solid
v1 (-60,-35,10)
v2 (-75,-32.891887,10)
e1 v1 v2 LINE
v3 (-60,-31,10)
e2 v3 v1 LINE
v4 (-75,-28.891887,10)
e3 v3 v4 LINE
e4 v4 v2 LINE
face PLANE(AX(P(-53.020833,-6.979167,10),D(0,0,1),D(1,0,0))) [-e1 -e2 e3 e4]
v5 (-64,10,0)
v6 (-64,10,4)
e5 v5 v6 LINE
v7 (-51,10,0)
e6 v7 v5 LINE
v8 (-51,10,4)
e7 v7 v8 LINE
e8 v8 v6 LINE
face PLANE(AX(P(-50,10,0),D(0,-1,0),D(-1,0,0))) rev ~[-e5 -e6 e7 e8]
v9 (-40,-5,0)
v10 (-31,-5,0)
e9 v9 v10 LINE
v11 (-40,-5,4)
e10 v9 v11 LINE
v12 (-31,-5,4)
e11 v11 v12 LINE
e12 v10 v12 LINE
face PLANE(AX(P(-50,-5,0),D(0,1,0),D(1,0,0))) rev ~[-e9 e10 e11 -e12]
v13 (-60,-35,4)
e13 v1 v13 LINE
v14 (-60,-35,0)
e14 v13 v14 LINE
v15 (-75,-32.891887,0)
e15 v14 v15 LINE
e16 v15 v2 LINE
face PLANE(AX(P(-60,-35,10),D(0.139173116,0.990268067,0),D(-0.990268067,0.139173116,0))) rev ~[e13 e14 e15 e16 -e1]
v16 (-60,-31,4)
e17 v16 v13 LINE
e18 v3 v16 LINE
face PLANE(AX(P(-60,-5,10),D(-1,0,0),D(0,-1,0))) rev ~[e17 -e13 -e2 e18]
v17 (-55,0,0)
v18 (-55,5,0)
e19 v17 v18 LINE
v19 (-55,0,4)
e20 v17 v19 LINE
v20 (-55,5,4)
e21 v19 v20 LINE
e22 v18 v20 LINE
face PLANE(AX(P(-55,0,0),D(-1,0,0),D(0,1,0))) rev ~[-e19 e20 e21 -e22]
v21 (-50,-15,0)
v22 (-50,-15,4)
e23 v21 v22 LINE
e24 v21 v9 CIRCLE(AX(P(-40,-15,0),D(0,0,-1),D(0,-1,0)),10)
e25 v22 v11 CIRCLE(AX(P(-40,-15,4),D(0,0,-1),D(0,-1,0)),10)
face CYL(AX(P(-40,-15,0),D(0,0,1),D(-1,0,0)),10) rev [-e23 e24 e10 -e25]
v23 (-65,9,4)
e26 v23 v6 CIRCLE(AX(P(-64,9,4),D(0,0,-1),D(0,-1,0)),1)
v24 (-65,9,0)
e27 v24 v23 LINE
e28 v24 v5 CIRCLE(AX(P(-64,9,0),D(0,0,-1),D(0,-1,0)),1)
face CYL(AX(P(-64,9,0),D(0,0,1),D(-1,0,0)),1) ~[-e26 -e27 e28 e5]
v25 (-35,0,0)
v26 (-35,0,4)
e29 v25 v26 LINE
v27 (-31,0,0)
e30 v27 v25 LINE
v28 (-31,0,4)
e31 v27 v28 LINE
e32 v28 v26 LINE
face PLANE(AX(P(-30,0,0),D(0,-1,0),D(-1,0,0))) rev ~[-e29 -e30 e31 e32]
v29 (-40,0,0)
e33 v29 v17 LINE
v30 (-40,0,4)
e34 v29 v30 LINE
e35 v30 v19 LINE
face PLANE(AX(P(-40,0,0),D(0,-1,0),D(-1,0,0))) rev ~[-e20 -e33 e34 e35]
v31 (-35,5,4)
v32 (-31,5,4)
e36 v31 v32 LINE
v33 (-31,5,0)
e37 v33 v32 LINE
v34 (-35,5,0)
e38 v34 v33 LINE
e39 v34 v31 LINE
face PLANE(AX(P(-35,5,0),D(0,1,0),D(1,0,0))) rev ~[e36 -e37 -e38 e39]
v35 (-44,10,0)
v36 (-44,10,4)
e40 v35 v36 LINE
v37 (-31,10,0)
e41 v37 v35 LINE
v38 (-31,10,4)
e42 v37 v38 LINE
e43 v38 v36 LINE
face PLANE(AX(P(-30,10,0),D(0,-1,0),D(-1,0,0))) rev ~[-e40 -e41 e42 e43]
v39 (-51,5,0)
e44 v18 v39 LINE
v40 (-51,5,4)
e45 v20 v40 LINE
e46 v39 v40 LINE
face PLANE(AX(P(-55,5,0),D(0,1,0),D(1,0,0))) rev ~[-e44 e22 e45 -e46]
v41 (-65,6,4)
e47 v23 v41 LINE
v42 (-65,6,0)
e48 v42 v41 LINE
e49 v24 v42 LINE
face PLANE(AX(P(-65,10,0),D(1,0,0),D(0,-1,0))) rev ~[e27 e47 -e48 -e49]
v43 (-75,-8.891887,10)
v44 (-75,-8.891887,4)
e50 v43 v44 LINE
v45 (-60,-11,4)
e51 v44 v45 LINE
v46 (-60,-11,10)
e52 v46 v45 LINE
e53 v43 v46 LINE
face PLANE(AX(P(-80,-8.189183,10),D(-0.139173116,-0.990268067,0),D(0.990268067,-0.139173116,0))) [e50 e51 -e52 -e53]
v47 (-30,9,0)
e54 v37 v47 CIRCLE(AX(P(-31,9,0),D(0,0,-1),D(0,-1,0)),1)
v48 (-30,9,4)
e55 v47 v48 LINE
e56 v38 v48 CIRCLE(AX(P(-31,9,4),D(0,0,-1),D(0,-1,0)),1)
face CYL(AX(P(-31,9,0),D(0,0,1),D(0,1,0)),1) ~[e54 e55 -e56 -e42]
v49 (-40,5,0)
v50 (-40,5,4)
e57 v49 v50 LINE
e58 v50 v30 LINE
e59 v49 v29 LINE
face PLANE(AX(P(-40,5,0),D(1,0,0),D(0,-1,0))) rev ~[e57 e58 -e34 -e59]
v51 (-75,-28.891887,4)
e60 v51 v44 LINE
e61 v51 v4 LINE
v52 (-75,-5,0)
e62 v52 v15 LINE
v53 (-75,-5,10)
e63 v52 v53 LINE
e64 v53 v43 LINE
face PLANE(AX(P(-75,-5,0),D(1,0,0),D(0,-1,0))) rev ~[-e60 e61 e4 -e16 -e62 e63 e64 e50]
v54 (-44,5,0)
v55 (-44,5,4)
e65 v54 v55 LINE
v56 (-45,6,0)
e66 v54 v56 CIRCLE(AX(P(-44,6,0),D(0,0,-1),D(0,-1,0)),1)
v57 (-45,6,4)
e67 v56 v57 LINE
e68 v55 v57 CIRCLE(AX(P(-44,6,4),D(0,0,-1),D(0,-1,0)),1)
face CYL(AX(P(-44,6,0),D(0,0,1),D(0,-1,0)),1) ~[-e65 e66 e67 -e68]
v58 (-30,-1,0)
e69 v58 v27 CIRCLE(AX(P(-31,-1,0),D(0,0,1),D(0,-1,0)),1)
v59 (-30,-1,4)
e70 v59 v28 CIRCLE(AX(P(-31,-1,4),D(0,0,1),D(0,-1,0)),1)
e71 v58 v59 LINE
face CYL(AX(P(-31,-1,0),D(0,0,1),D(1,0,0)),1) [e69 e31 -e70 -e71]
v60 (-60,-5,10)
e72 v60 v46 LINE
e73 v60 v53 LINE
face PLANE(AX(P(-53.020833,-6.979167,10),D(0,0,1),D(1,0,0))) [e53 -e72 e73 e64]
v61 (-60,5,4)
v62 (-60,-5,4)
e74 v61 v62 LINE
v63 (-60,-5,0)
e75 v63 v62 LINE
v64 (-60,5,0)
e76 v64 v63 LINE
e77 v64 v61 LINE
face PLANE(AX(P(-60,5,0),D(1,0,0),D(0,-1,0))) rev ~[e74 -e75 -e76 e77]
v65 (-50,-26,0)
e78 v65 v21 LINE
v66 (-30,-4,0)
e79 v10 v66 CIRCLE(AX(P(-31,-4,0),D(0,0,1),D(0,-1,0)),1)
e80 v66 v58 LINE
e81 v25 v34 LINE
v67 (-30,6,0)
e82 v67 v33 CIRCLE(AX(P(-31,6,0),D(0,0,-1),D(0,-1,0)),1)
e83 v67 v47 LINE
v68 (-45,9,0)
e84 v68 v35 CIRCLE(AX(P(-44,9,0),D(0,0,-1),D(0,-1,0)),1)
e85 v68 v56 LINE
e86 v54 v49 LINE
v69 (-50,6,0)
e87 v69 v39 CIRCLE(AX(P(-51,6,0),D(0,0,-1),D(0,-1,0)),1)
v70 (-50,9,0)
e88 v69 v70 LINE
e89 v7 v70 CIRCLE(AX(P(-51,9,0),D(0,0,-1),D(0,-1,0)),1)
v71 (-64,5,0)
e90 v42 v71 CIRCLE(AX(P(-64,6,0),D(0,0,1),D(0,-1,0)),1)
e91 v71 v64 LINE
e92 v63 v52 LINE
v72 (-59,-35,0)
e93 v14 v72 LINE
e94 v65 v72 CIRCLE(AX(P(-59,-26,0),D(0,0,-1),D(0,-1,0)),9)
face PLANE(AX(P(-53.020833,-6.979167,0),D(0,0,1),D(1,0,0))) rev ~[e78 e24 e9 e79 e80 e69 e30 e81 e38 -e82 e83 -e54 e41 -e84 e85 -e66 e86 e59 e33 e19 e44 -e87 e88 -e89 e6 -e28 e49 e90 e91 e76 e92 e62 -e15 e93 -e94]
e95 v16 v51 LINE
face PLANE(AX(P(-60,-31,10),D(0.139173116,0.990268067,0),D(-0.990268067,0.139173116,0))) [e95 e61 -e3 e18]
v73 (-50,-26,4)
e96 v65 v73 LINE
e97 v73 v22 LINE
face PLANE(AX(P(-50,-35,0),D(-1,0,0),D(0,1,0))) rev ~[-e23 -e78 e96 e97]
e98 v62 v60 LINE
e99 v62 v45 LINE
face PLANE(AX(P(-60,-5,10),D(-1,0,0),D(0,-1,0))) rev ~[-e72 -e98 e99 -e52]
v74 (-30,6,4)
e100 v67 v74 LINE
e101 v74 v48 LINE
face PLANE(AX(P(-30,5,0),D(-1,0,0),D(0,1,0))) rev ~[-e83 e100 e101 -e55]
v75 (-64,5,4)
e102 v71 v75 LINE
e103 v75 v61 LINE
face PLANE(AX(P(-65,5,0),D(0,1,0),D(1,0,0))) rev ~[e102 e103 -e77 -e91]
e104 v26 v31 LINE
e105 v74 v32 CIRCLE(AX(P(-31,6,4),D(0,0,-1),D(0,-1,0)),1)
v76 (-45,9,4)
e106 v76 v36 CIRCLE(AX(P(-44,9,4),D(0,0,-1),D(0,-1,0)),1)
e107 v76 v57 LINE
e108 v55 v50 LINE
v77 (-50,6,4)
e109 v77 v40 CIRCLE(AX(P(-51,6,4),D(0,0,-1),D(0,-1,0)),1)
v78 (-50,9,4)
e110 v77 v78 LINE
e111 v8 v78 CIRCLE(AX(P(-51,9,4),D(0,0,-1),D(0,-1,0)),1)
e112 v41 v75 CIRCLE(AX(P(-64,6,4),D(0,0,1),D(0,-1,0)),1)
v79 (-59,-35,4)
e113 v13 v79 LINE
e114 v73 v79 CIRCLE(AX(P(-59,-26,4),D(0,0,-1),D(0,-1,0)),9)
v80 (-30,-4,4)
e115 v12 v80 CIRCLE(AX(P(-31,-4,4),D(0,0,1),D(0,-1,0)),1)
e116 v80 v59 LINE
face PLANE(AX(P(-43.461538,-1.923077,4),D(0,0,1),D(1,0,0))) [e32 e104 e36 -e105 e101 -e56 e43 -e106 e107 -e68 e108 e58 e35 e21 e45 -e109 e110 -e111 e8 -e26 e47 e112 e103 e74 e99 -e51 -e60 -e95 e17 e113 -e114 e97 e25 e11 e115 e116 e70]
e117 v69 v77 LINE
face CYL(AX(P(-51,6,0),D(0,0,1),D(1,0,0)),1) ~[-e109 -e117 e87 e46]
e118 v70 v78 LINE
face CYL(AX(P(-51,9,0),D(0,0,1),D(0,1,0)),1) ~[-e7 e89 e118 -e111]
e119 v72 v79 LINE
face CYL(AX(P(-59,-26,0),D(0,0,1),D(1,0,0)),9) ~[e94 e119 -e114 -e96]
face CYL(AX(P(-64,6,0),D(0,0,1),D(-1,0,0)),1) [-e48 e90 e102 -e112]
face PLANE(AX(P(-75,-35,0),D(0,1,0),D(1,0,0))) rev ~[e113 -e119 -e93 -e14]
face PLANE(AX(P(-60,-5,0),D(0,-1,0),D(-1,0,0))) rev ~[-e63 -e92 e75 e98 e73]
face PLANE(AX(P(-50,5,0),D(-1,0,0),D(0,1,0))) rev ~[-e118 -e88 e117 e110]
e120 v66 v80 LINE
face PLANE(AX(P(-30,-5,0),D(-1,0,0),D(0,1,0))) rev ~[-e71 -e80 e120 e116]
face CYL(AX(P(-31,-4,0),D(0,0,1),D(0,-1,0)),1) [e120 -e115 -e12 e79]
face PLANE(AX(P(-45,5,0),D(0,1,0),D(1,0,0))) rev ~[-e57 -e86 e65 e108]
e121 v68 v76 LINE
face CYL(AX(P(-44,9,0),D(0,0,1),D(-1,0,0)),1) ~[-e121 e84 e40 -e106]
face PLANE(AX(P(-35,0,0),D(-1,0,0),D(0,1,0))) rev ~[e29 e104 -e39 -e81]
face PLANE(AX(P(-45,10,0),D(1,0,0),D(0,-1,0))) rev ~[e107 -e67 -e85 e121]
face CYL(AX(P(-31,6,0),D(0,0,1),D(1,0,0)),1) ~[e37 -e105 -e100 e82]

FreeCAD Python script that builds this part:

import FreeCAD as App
import Part
import Sketcher
from FreeCAD import Vector
Q = App.Units.Quantity


def edges_at(feature, points):
    """Names of the edges that pass closest to the given points."""
    edges = feature.Shape.Edges
    near = lambda p: min(range(len(edges)), key=lambda i: edges[i].distToShape(Part.Vertex(*p))[0])
    return sorted({f"Edge{near(p) + 1}" for p in points})


def add_polygon(sketch, points):
    """Adds a closed chain of lines whose ends are joined by coincident constraints."""
    first, n = sketch.GeometryCount, len(points)
    for a, b in zip(points, points[1:] + points[:1]):
        sketch.addGeometry(Part.LineSegment(App.Vector(*a, 0), App.Vector(*b, 0)), False)
    for i in range(n):
        sketch.addConstraint(Sketcher.Constraint("Coincident", first + i, 2, first + (i + 1) % n, 1))

doc = App.newDocument("Part")
params = doc.addObject("Spreadsheet::Sheet", "Params")
for row, (alias, value) in enumerate([
    ("sketch1_width", "5 mm"),
    ("sketch1_width2", "15 mm"),
    ("sketch1_height", "30 mm"),
    ("pad1_length", "10 mm"),
    ("sketch2_width", "80 mm"),
    ("sketch2_width2", "20 mm"),
    ("sketch2_width3", "10 mm"),
    ("sketch2_height", "30 mm"),
    ("pocket1_length", "6 mm"),
    ("sketch3_height", "20 mm"),
    ("pocket2_length", "6 mm"),
    ("sketch4_width", "20 mm"),
    ("sketch4_height", "5 mm"),
    ("pocket3_length", "11 mm"),
    ("fillet_radius", "1 mm"),
    ("fillet2_radius", "10 mm"),
    ("fillet3_radius", "9 mm"),
    ("fillet4_radius", "1 mm"),
], start=1):
    params.set(f"A{row}", alias)
    params.set(f"B{row}", "=" + value)
    params.setAlias(f"B{row}", alias)

body = doc.addObject("PartDesign::Body", "Body")

# Sketch on XY plane
sketch1 = doc.addObject("Sketcher::SketchObject", "Sketch")
body.addObject(sketch1)
sketch1.AttachmentSupport = (doc.XY_Plane, [""])
sketch1.MapMode = "FlatFace"
add_polygon(sketch1, [(-65, 10), (-65, 5), (-60, 5), (-60, -5), (-75, -5), (-75, -35), (-50, -35), (-50, -5), (-30, -5), (-30, 0), (-35, 0), (-35, 5), (-30, 5), (-30, 10), (-45, 10), (-45, 5), (-40, 5), (-40, 0), (-55, 0), (-55, 5), (-50, 5), (-50, 10)])  # lines 0-21
sketch1.addConstraint([
    Sketcher.Constraint("Vertical", 0),
    Sketcher.Constraint("Horizontal", 1),
    Sketcher.Constraint("Vertical", 2),
    Sketcher.Constraint("Horizontal", 3),
    Sketcher.Constraint("Vertical", 4),
    Sketcher.Constraint("Horizontal", 5),
    Sketcher.Constraint("Vertical", 6),
    Sketcher.Constraint("Horizontal", 7),
    Sketcher.Constraint("Vertical", 8),
    Sketcher.Constraint("Horizontal", 9),
    Sketcher.Constraint("Vertical", 10),
    Sketcher.Constraint("Horizontal", 11),
    Sketcher.Constraint("Vertical", 12),
    Sketcher.Constraint("Horizontal", 13),
    Sketcher.Constraint("Vertical", 14),
    Sketcher.Constraint("Horizontal", 15),
    Sketcher.Constraint("Vertical", 16),
    Sketcher.Constraint("Horizontal", 17),
    Sketcher.Constraint("Vertical", 18),
    Sketcher.Constraint("Horizontal", 19),
    Sketcher.Constraint("Vertical", 20),
    Sketcher.Constraint("Horizontal", 21),
    Sketcher.Constraint("Symmetric", 7, 2, 11, 2, -1),
    Sketcher.Constraint("Symmetric", 6, 2, 19, 2, -1),
    Sketcher.Constraint("PointOnObject", 8, 2, -1),
    Sketcher.Constraint("PointOnObject", 16, 2, -1),
    Sketcher.Constraint("Horizontal", 3, 2, 6, 2),
    Sketcher.Constraint("Horizontal", 1, 2, 10, 2),
    Sketcher.Constraint("Horizontal", 11, 2, 14, 2),
    Sketcher.Constraint("Horizontal", 13, 2, 20, 2),
    Sketcher.Constraint("Equal", 1, 9),
    Sketcher.Constraint("Equal", 3, 13),
    Sketcher.Constraint("Equal", 11, 15),
    Sketcher.Constraint("Equal", 13, 17),
    Sketcher.Constraint("Equal", 15, 19),
    Sketcher.Constraint("Equal", 17, 21),
    Sketcher.Constraint("Equal", 19, 0),
    Sketcher.Constraint("Equal", 0, 8),
    Sketcher.Constraint("DistanceX", 1, 1, 1, 2, Q("5 mm")),
    Sketcher.Constraint("DistanceX", 3, 2, 3, 1, Q("15 mm")),
    Sketcher.Constraint("DistanceY", 4, 2, 4, 1, Q("30 mm")),
    Sketcher.Constraint("DistanceX", 0, 2, -1, 1, Q("65 mm")),
])
sketch1.setExpression("Constraints[60]", "Params.sketch1_width")
sketch1.setExpression("Constraints[61]", "Params.sketch1_width2")
sketch1.setExpression("Constraints[62]", "Params.sketch1_height")
pad1 = doc.addObject("PartDesign::Pad", "Pad")
body.addObject(pad1)
pad1.Profile = sketch1
pad1.setExpression("Length", "Params.pad1_length")

# Sketch on XY plane
sketch2 = doc.addObject("Sketcher::SketchObject", "Sketch001")
body.addObject(sketch2)
sketch2.AttachmentSupport = (doc.XY_Plane, [""])
sketch2.MapMode = "FlatFace"
sketch2.AttachmentOffset = App.Placement(Vector(0, 0, 10), App.Rotation())
add_polygon(sketch2, [(0, 15), (-80, 15), (-80, -5), (-60, -5), (-60, -35), (-50, -35), (-50, -5), (0, -5)])  # lines 0-7
sketch2.addConstraint([
    Sketcher.Constraint("Horizontal", 0),
    Sketcher.Constraint("Vertical", 1),
    Sketcher.Constraint("Horizontal", 2),
    Sketcher.Constraint("Vertical", 3),
    Sketcher.Constraint("Horizontal", 4),
    Sketcher.Constraint("Vertical", 5),
    Sketcher.Constraint("Horizontal", 6),
    Sketcher.Constraint("Vertical", 7),
    Sketcher.Constraint("PointOnObject", 6, 2, -2),
    Sketcher.Constraint("Horizontal", 2, 2, 5, 2),
    Sketcher.Constraint("Equal", 2, 1),
    Sketcher.Constraint("DistanceX", 0, 2, 0, 1, Q("80 mm")),
    Sketcher.Constraint("DistanceX", 2, 1, 2, 2, Q("20 mm")),
    Sketcher.Constraint("DistanceX", 4, 1, 4, 2, Q("10 mm")),
    Sketcher.Constraint("DistanceY", 3, 2, 3, 1, Q("30 mm")),
    Sketcher.Constraint("DistanceY", -1, 1, 0, 2, Q("15 mm")),
])
sketch2.setExpression("Constraints[19]", "Params.sketch2_width")
sketch2.setExpression("Constraints[20]", "Params.sketch2_width2")
sketch2.setExpression("Constraints[21]", "Params.sketch2_width3")
sketch2.setExpression("Constraints[22]", "Params.sketch2_height")
pocket1 = doc.addObject("PartDesign::Pocket", "Pocket")
body.addObject(pocket1)
pocket1.Profile = sketch2
pocket1.setExpression("Length", "Params.pocket1_length")

# Sketch on XY plane
sketch3 = doc.addObject("Sketcher::SketchObject", "Sketch002")
body.addObject(sketch3)
sketch3.AttachmentSupport = (doc.XY_Plane, [""])
sketch3.MapMode = "FlatFace"
sketch3.AttachmentOffset = App.Placement(Vector(0, 0, 10), App.Rotation())
add_polygon(sketch3, [(-60, -11), (-80, -8), (-80, -28), (-60, -31)])  # lines 0-3
sketch3.addConstraint([
    Sketcher.Constraint("Vertical", 1),
    Sketcher.Constraint("Vertical", 3),
    Sketcher.Constraint("Parallel", 0, 2),
    Sketcher.Constraint("DistanceY", 1, 2, 1, 1, Q("20 mm")),
    Sketcher.Constraint("Angle", 0, Q("171.999999 deg")),
    Sketcher.Constraint("DistanceX", 0, 2, -1, 1, Q("80 mm")),
    Sketcher.Constraint("DistanceX", 2, 2, -1, 1, Q("60 mm")),
    Sketcher.Constraint("DistanceY", 2, 2, -1, 1, Q("31 mm")),
])
sketch3.setExpression("Constraints[7]", "Params.sketch3_height")
pocket2 = doc.addObject("PartDesign::Pocket", "Pocket001")
body.addObject(pocket2)
pocket2.Profile = sketch3
pocket2.setExpression("Length", "Params.pocket2_length")

# Sketch on XY plane
sketch4 = doc.addObject("Sketcher::SketchObject", "Sketch003")
body.addObject(sketch4)
sketch4.AttachmentSupport = (doc.XY_Plane, [""])
sketch4.MapMode = "FlatFace"
sketch4.AttachmentOffset = App.Placement(Vector(0, 0, 10), App.Rotation())
add_polygon(sketch4, [(-60, -35), (-80, -32), (-80, -40), (-60, -40)])  # lines 0-3
sketch4.addConstraint([
    Sketcher.Constraint("Vertical", 1),
    Sketcher.Constraint("Horizontal", 2),
    Sketcher.Constraint("Vertical", 3),
    Sketcher.Constraint("DistanceX", 2, 1, 2, 2, Q("20 mm")),
    Sketcher.Constraint("DistanceY", 3, 1, 3, 2, Q("5 mm")),
    Sketcher.Constraint("Angle", 0, Q("171.999999 deg")),
    Sketcher.Constraint("DistanceX", 0, 2, -1, 1, Q("80 mm")),
    Sketcher.Constraint("DistanceY", 1, 2, -1, 1, Q("40 mm")),
])
sketch4.setExpression("Constraints[7]", "Params.sketch4_width")
sketch4.setExpression("Constraints[8]", "Params.sketch4_height")
pocket3 = doc.addObject("PartDesign::Pocket", "Pocket002")
body.addObject(pocket3)
pocket3.Profile = sketch4
pocket3.setExpression("Length", "Params.pocket3_length")
doc.recompute()

fillet = doc.addObject("PartDesign::Fillet", "Fillet")
body.addObject(fillet)
fillet.Base = (pocket3, edges_at(pocket3, [
    (-65, 5, 2),
    (-45, 5, 2),
    (-45, 10, 2),
    (-65, 10, 2),
    (-50, 10, 2),
    (-30, 10, 2),
    (-50, 5, 2),
    (-30, 5, 2),
]))
fillet.setExpression("Radius", "Params.fillet_radius")
doc.recompute()

fillet2 = doc.addObject("PartDesign::Fillet", "Fillet001")
body.addObject(fillet2)
fillet2.Base = (fillet, edges_at(fillet, [(-50, -5, 2)]))
fillet2.setExpression("Radius", "Params.fillet2_radius")
doc.recompute()

fillet3 = doc.addObject("PartDesign::Fillet", "Fillet002")
body.addObject(fillet3)
fillet3.Base = (fillet2, edges_at(fillet2, [(-50, -35, 2)]))
fillet3.setExpression("Radius", "Params.fillet3_radius")
doc.recompute()

fillet4 = doc.addObject("PartDesign::Fillet", "Fillet003")
body.addObject(fillet4)
fillet4.Base = (fillet3, edges_at(fillet3, [(-30, -5, 2), (-30, 0, 2)]))
fillet4.setExpression("Radius", "Params.fillet4_radius")

doc.recompute()
